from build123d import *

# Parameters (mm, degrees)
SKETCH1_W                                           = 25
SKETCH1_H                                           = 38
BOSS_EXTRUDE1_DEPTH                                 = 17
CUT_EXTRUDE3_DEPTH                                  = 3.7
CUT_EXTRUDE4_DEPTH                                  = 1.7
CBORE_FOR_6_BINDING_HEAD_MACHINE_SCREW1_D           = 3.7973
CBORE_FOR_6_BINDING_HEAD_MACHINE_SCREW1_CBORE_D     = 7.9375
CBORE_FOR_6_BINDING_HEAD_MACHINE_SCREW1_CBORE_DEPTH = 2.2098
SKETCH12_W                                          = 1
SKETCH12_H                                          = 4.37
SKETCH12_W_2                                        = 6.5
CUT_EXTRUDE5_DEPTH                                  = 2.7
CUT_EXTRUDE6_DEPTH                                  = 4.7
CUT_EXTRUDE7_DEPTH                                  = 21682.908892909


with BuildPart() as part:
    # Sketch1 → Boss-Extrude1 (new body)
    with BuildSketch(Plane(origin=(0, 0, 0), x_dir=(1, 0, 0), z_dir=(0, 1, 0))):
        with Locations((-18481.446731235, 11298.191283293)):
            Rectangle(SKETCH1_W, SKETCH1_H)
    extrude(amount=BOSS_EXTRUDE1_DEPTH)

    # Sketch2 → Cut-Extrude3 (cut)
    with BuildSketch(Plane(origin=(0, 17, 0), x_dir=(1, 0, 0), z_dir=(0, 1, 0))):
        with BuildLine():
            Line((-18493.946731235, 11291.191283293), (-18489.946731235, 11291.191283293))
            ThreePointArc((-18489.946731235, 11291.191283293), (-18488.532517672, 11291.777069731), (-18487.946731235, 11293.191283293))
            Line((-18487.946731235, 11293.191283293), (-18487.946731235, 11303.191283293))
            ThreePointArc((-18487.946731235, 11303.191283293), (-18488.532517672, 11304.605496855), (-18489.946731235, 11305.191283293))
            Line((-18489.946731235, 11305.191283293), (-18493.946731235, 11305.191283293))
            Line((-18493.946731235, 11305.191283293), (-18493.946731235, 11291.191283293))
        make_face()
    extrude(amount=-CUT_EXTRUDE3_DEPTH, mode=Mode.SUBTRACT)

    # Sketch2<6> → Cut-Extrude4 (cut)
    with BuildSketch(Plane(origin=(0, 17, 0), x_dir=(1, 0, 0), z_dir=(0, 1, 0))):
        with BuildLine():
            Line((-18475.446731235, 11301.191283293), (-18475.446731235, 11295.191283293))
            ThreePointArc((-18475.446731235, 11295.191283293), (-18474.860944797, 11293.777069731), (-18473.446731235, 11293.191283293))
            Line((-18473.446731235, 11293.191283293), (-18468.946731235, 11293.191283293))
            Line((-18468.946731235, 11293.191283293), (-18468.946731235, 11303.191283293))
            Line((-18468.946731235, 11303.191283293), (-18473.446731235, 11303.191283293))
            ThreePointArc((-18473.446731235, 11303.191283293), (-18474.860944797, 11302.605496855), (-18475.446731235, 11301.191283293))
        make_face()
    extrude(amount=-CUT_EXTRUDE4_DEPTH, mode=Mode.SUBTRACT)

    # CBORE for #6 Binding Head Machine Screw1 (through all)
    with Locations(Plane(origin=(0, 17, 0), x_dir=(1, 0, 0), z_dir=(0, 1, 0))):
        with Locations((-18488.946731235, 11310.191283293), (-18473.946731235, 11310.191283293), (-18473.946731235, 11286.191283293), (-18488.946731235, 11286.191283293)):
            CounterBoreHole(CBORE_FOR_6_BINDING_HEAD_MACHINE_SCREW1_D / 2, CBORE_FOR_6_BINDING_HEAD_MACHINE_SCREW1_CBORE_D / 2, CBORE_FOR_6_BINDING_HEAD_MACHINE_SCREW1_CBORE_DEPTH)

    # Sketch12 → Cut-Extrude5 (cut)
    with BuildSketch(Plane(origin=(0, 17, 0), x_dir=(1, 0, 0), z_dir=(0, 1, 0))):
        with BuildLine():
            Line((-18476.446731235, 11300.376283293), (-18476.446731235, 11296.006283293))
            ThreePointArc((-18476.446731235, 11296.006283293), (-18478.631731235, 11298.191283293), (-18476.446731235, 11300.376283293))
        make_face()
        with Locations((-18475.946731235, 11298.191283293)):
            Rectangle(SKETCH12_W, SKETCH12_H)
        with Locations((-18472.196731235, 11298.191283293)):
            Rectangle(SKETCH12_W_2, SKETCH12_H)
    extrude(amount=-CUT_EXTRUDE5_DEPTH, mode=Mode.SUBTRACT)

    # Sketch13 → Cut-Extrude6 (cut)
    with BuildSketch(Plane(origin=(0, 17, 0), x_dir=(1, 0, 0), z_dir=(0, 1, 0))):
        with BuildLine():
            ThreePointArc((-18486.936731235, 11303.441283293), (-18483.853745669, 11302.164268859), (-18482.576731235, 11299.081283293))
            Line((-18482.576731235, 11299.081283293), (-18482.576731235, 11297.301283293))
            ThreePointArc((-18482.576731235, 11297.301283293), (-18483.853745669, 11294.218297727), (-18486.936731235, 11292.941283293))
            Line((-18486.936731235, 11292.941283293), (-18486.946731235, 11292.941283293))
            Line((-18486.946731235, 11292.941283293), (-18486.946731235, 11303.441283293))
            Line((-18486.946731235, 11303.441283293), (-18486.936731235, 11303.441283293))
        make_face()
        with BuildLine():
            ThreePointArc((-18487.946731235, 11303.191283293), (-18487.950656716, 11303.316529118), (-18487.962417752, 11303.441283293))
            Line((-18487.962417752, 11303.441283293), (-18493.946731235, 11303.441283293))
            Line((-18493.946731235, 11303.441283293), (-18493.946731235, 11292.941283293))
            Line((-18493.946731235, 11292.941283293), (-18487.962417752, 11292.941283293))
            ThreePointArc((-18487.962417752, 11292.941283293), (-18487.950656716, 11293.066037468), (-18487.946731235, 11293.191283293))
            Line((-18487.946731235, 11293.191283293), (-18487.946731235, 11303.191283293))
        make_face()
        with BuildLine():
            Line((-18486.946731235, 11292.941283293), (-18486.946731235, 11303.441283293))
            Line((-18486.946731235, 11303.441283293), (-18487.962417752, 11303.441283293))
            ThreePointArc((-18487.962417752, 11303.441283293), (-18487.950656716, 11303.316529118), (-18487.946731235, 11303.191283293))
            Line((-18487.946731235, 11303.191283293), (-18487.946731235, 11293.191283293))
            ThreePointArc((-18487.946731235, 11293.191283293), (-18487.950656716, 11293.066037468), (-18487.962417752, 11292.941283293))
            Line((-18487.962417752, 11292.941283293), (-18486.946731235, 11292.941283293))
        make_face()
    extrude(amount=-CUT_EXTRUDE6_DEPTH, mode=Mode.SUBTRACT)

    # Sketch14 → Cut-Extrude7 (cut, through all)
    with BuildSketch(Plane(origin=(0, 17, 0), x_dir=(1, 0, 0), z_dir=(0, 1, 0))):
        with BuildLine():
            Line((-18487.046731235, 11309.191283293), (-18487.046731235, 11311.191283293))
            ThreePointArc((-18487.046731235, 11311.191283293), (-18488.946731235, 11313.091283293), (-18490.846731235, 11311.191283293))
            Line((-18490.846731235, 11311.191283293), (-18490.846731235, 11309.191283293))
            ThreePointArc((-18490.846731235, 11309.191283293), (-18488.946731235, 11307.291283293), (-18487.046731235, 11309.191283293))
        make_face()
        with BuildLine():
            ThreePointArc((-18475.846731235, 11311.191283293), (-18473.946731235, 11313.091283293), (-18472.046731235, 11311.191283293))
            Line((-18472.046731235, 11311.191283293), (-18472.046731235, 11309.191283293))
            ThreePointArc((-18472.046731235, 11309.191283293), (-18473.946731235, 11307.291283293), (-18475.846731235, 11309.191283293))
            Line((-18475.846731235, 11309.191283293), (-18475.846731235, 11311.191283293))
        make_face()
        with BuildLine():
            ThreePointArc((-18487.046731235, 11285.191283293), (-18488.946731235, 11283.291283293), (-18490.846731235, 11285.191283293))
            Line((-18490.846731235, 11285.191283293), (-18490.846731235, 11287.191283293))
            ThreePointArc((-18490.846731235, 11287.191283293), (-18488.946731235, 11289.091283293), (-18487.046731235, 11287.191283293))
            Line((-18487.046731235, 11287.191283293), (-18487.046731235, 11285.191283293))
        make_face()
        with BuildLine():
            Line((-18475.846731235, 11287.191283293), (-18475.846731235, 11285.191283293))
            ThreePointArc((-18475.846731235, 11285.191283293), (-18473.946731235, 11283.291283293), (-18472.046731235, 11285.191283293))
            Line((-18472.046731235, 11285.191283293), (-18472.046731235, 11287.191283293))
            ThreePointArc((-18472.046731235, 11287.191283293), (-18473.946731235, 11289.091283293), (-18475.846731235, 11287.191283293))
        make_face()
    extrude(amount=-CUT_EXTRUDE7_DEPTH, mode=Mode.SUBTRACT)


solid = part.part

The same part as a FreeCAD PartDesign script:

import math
import FreeCAD as App
import Part
import Sketcher

V = App.Vector

doc = App.newDocument("Part")
params = doc.addObject("Spreadsheet::Sheet", "Params")
for row, (alias, value) in enumerate([
    ("sketch1_width", "25 mm"),
    ("sketch1_height", "38 mm"),
    ("pad1_length", "17 mm"),
    ("sketch2_radius", "2 mm"),
    ("sketch2_width", "4 mm"),
    ("sketch2_height", "10 mm"),
    ("pocket1_length", "3.7 mm"),
    ("sketch3_radius", "2 mm"),
    ("sketch3_height", "6 mm"),
    ("sketch3_width", "4.5 mm"),
    ("pocket2_length", "1.7 mm"),
    ("hole_diameter", "3.7973 mm"),
    ("hole_cbore_diameter", "7.9375 mm"),
    ("hole_cbore_depth", "2.2098 mm"),
    ("sketch5_width", "7.5 mm"),
    ("pocket3_length", "2.7 mm"),
    ("sketch6_radius", "4.36 mm"),
    ("sketch6_height", "10.5 mm"),
    ("sketch6_width", "7.01 mm"),
    ("pocket4_length", "4.7 mm"),
    ("sketch7_radius", "1.9 mm"),
    ("sketch7_height", "2 mm"),
], start=1):
    params.set(f"A{row}", alias)
    params.set(f"B{row}", "=" + value)
    params.setAlias(f"B{row}", alias)

body = doc.addObject("PartDesign::Body", "Body")

# Sketch on XZ plane
sketch1 = doc.addObject("Sketcher::SketchObject", "Sketch")
body.addObject(sketch1)
sketch1.AttachmentSupport = (doc.XZ_Plane, [""])
sketch1.MapMode = "FlatFace"
sketch1.addGeometry([
    Part.LineSegment(V(-18493.946731, -11317.191283, 0), V(-18493.946731, -11279.191283, 0)),
    Part.LineSegment(V(-18493.946731, -11279.191283, 0), V(-18468.946731, -11279.191283, 0)),
    Part.LineSegment(V(-18468.946731, -11279.191283, 0), V(-18468.946731, -11317.191283, 0)),
    Part.LineSegment(V(-18468.946731, -11317.191283, 0), V(-18493.946731, -11317.191283, 0)),
], False)
sketch1.addConstraint([
    Sketcher.Constraint("Coincident", 0, 2, 1, 1),
    Sketcher.Constraint("Coincident", 1, 2, 2, 1),
    Sketcher.Constraint("Coincident", 2, 2, 3, 1),
    Sketcher.Constraint("Coincident", 3, 2, 0, 1),
    Sketcher.Constraint("Vertical", 0),
    Sketcher.Constraint("Horizontal", 1),
    Sketcher.Constraint("Vertical", 2),
    Sketcher.Constraint("Horizontal", 3),
    Sketcher.Constraint("DistanceX", 1, 1, 1, 2, 25.0),
    Sketcher.Constraint("DistanceY", 0, 1, 0, 2, 38.0),
    Sketcher.Constraint("DistanceX", 0, 2, -1, 1, 18493.946731),
    Sketcher.Constraint("DistanceY", 0, 2, -1, 1, 11279.191283),
])
sketch1.setExpression("Constraints[8]", "Params.sketch1_width")
sketch1.setExpression("Constraints[9]", "Params.sketch1_height")
pad1 = doc.addObject("PartDesign::Pad", "Pad")
body.addObject(pad1)
pad1.Profile = sketch1
pad1.setExpression("Length", "Params.pad1_length")
pad1.Reversed = True

# Sketch on XZ plane
sketch2 = doc.addObject("Sketcher::SketchObject", "Sketch001")
body.addObject(sketch2)
sketch2.AttachmentSupport = (doc.XZ_Plane, [""])
sketch2.MapMode = "FlatFace"
sketch2.AttachmentOffset = App.Placement(V(0, 0, -17), App.Rotation())
sketch2.addGeometry([
    Part.LineSegment(V(-18493.946731, -11291.191283, 0), V(-18489.946731, -11291.191283, 0)),  # 0
    Part.ArcOfCircle(Part.Circle(V(-18489.946731, -11293.191283, 0), V(0, 0, 1), 2), math.radians(0), math.radians(90)),  # 1
    Part.LineSegment(V(-18487.946731, -11293.191283, 0), V(-18487.946731, -11303.191283, 0)),  # 2
    Part.ArcOfCircle(Part.Circle(V(-18489.946731, -11303.191283, 0), V(0, 0, 1), 2), math.radians(-90), math.radians(0)),  # 3
    Part.LineSegment(V(-18489.946731, -11305.191283, 0), V(-18493.946731, -11305.191283, 0)),  # 4
    Part.LineSegment(V(-18493.946731, -11305.191283, 0), V(-18493.946731, -11291.191283, 0)),  # 5
], False)
sketch2.addConstraint([
    Sketcher.Constraint("Tangent", 0, 2, 1, 2),
    Sketcher.Constraint("Tangent", 1, 1, 2, 1),
    Sketcher.Constraint("Tangent", 2, 2, 3, 2),
    Sketcher.Constraint("Tangent", 3, 1, 4, 1),
    Sketcher.Constraint("Coincident", 4, 2, 5, 1),
    Sketcher.Constraint("Coincident", 5, 2, 0, 1),
    Sketcher.Constraint("Horizontal", 0),
    Sketcher.Constraint("Vertical", 2),
    Sketcher.Constraint("Horizontal", 4),
    Sketcher.Constraint("Vertical", 5),
    Sketcher.Constraint("Equal", 1, 3),
    Sketcher.Constraint("Radius", 1, 2.0),
    Sketcher.Constraint("DistanceX", 0, 1, 0, 2, 4.0),
    Sketcher.Constraint("DistanceY", 2, 2, 2, 1, 10.0),
    Sketcher.Constraint("DistanceX", 1, 3, -1, 1, 18489.946731),
    Sketcher.Constraint("DistanceY", 1, 3, -1, 1, 11293.191283),
])
sketch2.setExpression("Constraints[11]", "Params.sketch2_radius")
sketch2.setExpression("Constraints[12]", "Params.sketch2_width")
sketch2.setExpression("Constraints[13]", "Params.sketch2_height")
pocket1 = doc.addObject("PartDesign::Pocket", "Pocket")
body.addObject(pocket1)
pocket1.Profile = sketch2
pocket1.setExpression("Length", "Params.pocket1_length")
pocket1.Reversed = True

# Sketch on XZ plane
sketch3 = doc.addObject("Sketcher::SketchObject", "Sketch002")
body.addObject(sketch3)
sketch3.AttachmentSupport = (doc.XZ_Plane, [""])
sketch3.MapMode = "FlatFace"
sketch3.AttachmentOffset = App.Placement(V(0, 0, -17), App.Rotation())
sketch3.addGeometry([
    Part.LineSegment(V(-18475.446731, -11301.191283, 0), V(-18475.446731, -11295.191283, 0)),  # 0
    Part.ArcOfCircle(Part.Circle(V(-18473.446731, -11295.191283, 0), V(0, 0, 1), 2), math.radians(90), math.radians(180)),  # 1
    Part.LineSegment(V(-18473.446731, -11293.191283, 0), V(-18468.946731, -11293.191283, 0)),  # 2
    Part.LineSegment(V(-18468.946731, -11293.191283, 0), V(-18468.946731, -11303.191283, 0)),  # 3
    Part.LineSegment(V(-18468.946731, -11303.191283, 0), V(-18473.446731, -11303.191283, 0)),  # 4
    Part.ArcOfCircle(Part.Circle(V(-18473.446731, -11301.191283, 0), V(0, 0, 1), 2), math.radians(-180), math.radians(-90)),  # 5
], False)
sketch3.addConstraint([
    Sketcher.Constraint("Tangent", 0, 2, 1, 2),
    Sketcher.Constraint("Tangent", 1, 1, 2, 1),
    Sketcher.Constraint("Coincident", 2, 2, 3, 1),
    Sketcher.Constraint("Coincident", 3, 2, 4, 1),
    Sketcher.Constraint("Tangent", 4, 2, 5, 2),
    Sketcher.Constraint("Tangent", 5, 1, 0, 1),
    Sketcher.Constraint("Vertical", 0),
    Sketcher.Constraint("Horizontal", 2),
    Sketcher.Constraint("Vertical", 3),
    Sketcher.Constraint("Horizontal", 4),
    Sketcher.Constraint("Equal", 1, 5),
    Sketcher.Constraint("Radius", 1, 2.0),
    Sketcher.Constraint("DistanceY", 0, 1, 0, 2, 6.0),
    Sketcher.Constraint("DistanceX", 2, 1, 2, 2, 4.5),
    Sketcher.Constraint("DistanceX", 1, 3, -1, 1, 18473.446731),
    Sketcher.Constraint("DistanceY", 1, 3, -1, 1, 11295.191283),
])
sketch3.setExpression("Constraints[11]", "Params.sketch3_radius")
sketch3.setExpression("Constraints[12]", "Params.sketch3_height")
sketch3.setExpression("Constraints[13]", "Params.sketch3_width")
pocket2 = doc.addObject("PartDesign::Pocket", "Pocket001")
body.addObject(pocket2)
pocket2.Profile = sketch3
pocket2.setExpression("Length", "Params.pocket2_length")
pocket2.Reversed = True

# Sketch on XZ plane
sketch4 = doc.addObject("Sketcher::SketchObject", "Sketch003")
body.addObject(sketch4)
sketch4.AttachmentSupport = (doc.XZ_Plane, [""])
sketch4.MapMode = "FlatFace"
sketch4.AttachmentOffset = App.Placement(V(0, 0, -17), App.Rotation())
sketch4.addGeometry([
    Part.Circle(V(-18488.946731, -11310.191283, 0), V(0, 0, 1), 1.89865),
    Part.Circle(V(-18473.946731, -11310.191283, 0), V(0, 0, 1), 1.89865),
    Part.Circle(V(-18473.946731, -11286.191283, 0), V(0, 0, 1), 1.89865),
    Part.Circle(V(-18488.946731, -11286.191283, 0), V(0, 0, 1), 1.89865),
], False)
sketch4.addConstraint([
    Sketcher.Constraint("Equal", 0, 1),
    Sketcher.Constraint("Equal", 1, 2),
    Sketcher.Constraint("Equal", 2, 3),
    Sketcher.Constraint("Horizontal", 0, 3, 1, 3),
    Sketcher.Constraint("Horizontal", 2, 3, 3, 3),
    Sketcher.Constraint("Vertical", 1, 3, 2, 3),
    Sketcher.Constraint("Vertical", 0, 3, 3, 3),
    Sketcher.Constraint("DistanceX", 0, 3, 1, 3, 15.0),
    Sketcher.Constraint("DistanceY", 1, 3, 2, 3, 24.0),
    Sketcher.Constraint("Diameter", 0, 3.7973),
    Sketcher.Constraint("DistanceX", 0, 3, -1, 1, 18488.946731),
    Sketcher.Constraint("DistanceY", 0, 3, -1, 1, 11310.191283),
])
doc.recompute()
hole = doc.addObject("PartDesign::Hole", "Hole")
body.addObject(hole)
hole.Profile = sketch4
hole.ThreadType = "None"
hole.setExpression("Diameter", "Params.hole_diameter")
hole.DepthType = "ThroughAll"
hole.HoleCutType = "Counterbore"
hole.setExpression("HoleCutDiameter", "Params.hole_cbore_diameter")
hole.setExpression("HoleCutDepth", "Params.hole_cbore_depth")
hole.Reversed = True

# Sketch on XZ plane
sketch5 = doc.addObject("Sketcher::SketchObject", "Sketch004")
body.addObject(sketch5)
sketch5.AttachmentSupport = (doc.XZ_Plane, [""])
sketch5.MapMode = "FlatFace"
sketch5.AttachmentOffset = App.Placement(V(0, 0, -17), App.Rotation())
sketch5.addGeometry([
    Part.ArcOfCircle(Part.Circle(V(-18476.446731, -11298.191283, 0), V(0, 0, 1), 2.185), math.radians(90), math.radians(270)),
    Part.LineSegment(V(-18476.446731, -11296.006283, 0), V(-18468.946731, -11296.006283, 0)),
    Part.LineSegment(V(-18468.946731, -11296.006283, 0), V(-18468.946731, -11300.376283, 0)),
    Part.LineSegment(V(-18468.946731, -11300.376283, 0), V(-18476.446731, -11300.376283, 0)),
], False)
sketch5.addConstraint([
    Sketcher.Constraint("Tangent", 0, 1, 1, 1),
    Sketcher.Constraint("Coincident", 1, 2, 2, 1),
    Sketcher.Constraint("Coincident", 2, 2, 3, 1),
    Sketcher.Constraint("Tangent", 3, 2, 0, 2),
    Sketcher.Constraint("Horizontal", 1),
    Sketcher.Constraint("Vertical", 2),
    Sketcher.Constraint("Horizontal", 3),
    Sketcher.Constraint("DistanceX", 1, 1, 1, 2, 7.5),
    Sketcher.Constraint("Radius", 0, 2.185),
    Sketcher.Constraint("DistanceX", 0, 3, -1, 1, 18476.446731),
    Sketcher.Constraint("DistanceY", 0, 3, -1, 1, 11298.191283),
])
sketch5.setExpression("Constraints[7]", "Params.sketch5_width")
pocket3 = doc.addObject("PartDesign::Pocket", "Pocket002")
body.addObject(pocket3)
pocket3.Profile = sketch5
pocket3.setExpression("Length", "Params.pocket3_length")
pocket3.Reversed = True

# Sketch on XZ plane
sketch6 = doc.addObject("Sketcher::SketchObject", "Sketch005")
body.addObject(sketch6)
sketch6.AttachmentSupport = (doc.XZ_Plane, [""])
sketch6.MapMode = "FlatFace"
sketch6.AttachmentOffset = App.Placement(V(0, 0, -17), App.Rotation())
sketch6.addGeometry([
    Part.ArcOfCircle(Part.Circle(V(-18486.936731, -11299.081283, 0), V(0, 0, 1), 4.36), math.radians(-90), math.radians(0)),  # 0
    Part.LineSegment(V(-18486.936731, -11303.441283, 0), V(-18493.946731, -11303.441283, 0)),  # 1
    Part.LineSegment(V(-18493.946731, -11303.441283, 0), V(-18493.946731, -11292.941283, 0)),  # 2
    Part.LineSegment(V(-18493.946731, -11292.941283, 0), V(-18486.936731, -11292.941283, 0)),  # 3
    Part.ArcOfCircle(Part.Circle(V(-18486.936731, -11297.301283, 0), V(0, 0, 1), 4.36), math.radians(0), math.radians(90)),  # 4
    Part.LineSegment(V(-18482.576731, -11297.301283, 0), V(-18482.576731, -11299.081283, 0)),  # 5
], False)
sketch6.addConstraint([
    Sketcher.Constraint("Tangent", 0, 1, 1, 1),
    Sketcher.Constraint("Coincident", 1, 2, 2, 1),
    Sketcher.Constraint("Coincident", 2, 2, 3, 1),
    Sketcher.Constraint("Tangent", 3, 2, 4, 2),
    Sketcher.Constraint("Tangent", 4, 1, 5, 1),
    Sketcher.Constraint("Tangent", 5, 2, 0, 2),
    Sketcher.Constraint("Horizontal", 1),
    Sketcher.Constraint("Vertical", 2),
    Sketcher.Constraint("Horizontal", 3),
    Sketcher.Constraint("Vertical", 5),
    Sketcher.Constraint("Equal", 0, 4),
    Sketcher.Constraint("Radius", 0, 4.36),
    Sketcher.Constraint("DistanceY", 2, 1, 2, 2, 10.5),
    Sketcher.Constraint("DistanceX", 1, 2, 1, 1, 7.01),
    Sketcher.Constraint("DistanceX", 0, 3, -1, 1, 18486.936731),
    Sketcher.Constraint("DistanceY", 0, 3, -1, 1, 11299.081283),
])
sketch6.setExpression("Constraints[11]", "Params.sketch6_radius")
sketch6.setExpression("Constraints[12]", "Params.sketch6_height")
sketch6.setExpression("Constraints[13]", "Params.sketch6_width")
pocket4 = doc.addObject("PartDesign::Pocket", "Pocket003")
body.addObject(pocket4)
pocket4.Profile = sketch6
pocket4.setExpression("Length", "Params.pocket4_length")
pocket4.Reversed = True

# Sketch on XZ plane
sketch7 = doc.addObject("Sketcher::SketchObject", "Sketch006")
body.addObject(sketch7)
sketch7.AttachmentSupport = (doc.XZ_Plane, [""])
sketch7.MapMode = "FlatFace"
sketch7.AttachmentOffset = App.Placement(V(0, 0, -17), App.Rotation())
sketch7.addGeometry([
    Part.LineSegment(V(-18487.046731, -11309.191283, 0), V(-18487.046731, -11311.191283, 0)),  # 0
    Part.ArcOfCircle(Part.Circle(V(-18488.946731, -11311.191283, 0), V(0, 0, 1), 1.9), math.radians(180), math.radians(360)),  # 1
    Part.LineSegment(V(-18490.846731, -11311.191283, 0), V(-18490.846731, -11309.191283, 0)),  # 2
    Part.ArcOfCircle(Part.Circle(V(-18488.946731, -11309.191283, 0), V(0, 0, 1), 1.9), math.radians(0), math.radians(180)),  # 3
    Part.ArcOfCircle(Part.Circle(V(-18473.946731, -11311.191283, 0), V(0, 0, 1), 1.9), math.radians(180), math.radians(360)),  # 4
    Part.LineSegment(V(-18475.846731, -11311.191283, 0), V(-18475.846731, -11309.191283, 0)),  # 5
    Part.ArcOfCircle(Part.Circle(V(-18473.946731, -11309.191283, 0), V(0, 0, 1), 1.9), math.radians(0), math.radians(180)),  # 6
    Part.LineSegment(V(-18472.046731, -11309.191283, 0), V(-18472.046731, -11311.191283, 0)),  # 7
    Part.ArcOfCircle(Part.Circle(V(-18488.946731, -11285.191283, 0), V(0, 0, 1), 1.9), math.radians(0), math.radians(180)),  # 8
    Part.LineSegment(V(-18487.046731, -11285.191283, 0), V(-18487.046731, -11287.191283, 0)),  # 9
    Part.ArcOfCircle(Part.Circle(V(-18488.946731, -11287.191283, 0), V(0, 0, 1), 1.9), math.radians(180), math.radians(360)),  # 10
    Part.LineSegment(V(-18490.846731, -11287.191283, 0), V(-18490.846731, -11285.191283, 0)),  # 11
    Part.LineSegment(V(-18475.846731, -11287.191283, 0), V(-18475.846731, -11285.191283, 0)),  # 12
    Part.ArcOfCircle(Part.Circle(V(-18473.946731, -11285.191283, 0), V(0, 0, 1), 1.9), math.radians(0), math.radians(180)),  # 13
    Part.LineSegment(V(-18472.046731, -11285.191283, 0), V(-18472.046731, -11287.191283, 0)),  # 14
    Part.ArcOfCircle(Part.Circle(V(-18473.946731, -11287.191283, 0), V(0, 0, 1), 1.9), math.radians(180), math.radians(360)),  # 15
], False)
sketch7.addConstraint([
    Sketcher.Constraint("Tangent", 0, 2, 1, 2),
    Sketcher.Constraint("Tangent", 1, 1, 2, 1),
    Sketcher.Constraint("Tangent", 2, 2, 3, 2),
    Sketcher.Constraint("Tangent", 3, 1, 0, 1),
    Sketcher.Constraint("Tangent", 4, 1, 5, 1),
    Sketcher.Constraint("Tangent", 5, 2, 6, 2),
    Sketcher.Constraint("Tangent", 6, 1, 7, 1),
    Sketcher.Constraint("Tangent", 7, 2, 4, 2),
    Sketcher.Constraint("Tangent", 8, 1, 9, 1),
    Sketcher.Constraint("Tangent", 9, 2, 10, 2),
    Sketcher.Constraint("Tangent", 10, 1, 11, 1),
    Sketcher.Constraint("Tangent", 11, 2, 8, 2),
    Sketcher.Constraint("Tangent", 12, 2, 13, 2),
    Sketcher.Constraint("Tangent", 13, 1, 14, 1),
    Sketcher.Constraint("Tangent", 14, 2, 15, 2),
    Sketcher.Constraint("Tangent", 15, 1, 12, 1),
    Sketcher.Constraint("Vertical", 0),
    Sketcher.Constraint("Vertical", 2),
    Sketcher.Constraint("Vertical", 5),
    Sketcher.Constraint("Vertical", 7),
    Sketcher.Constraint("Vertical", 9),
    Sketcher.Constraint("Vertical", 11),
    Sketcher.Constraint("Vertical", 12),
    Sketcher.Constraint("Vertical", 14),
    Sketcher.Constraint("Equal", 3, 4),
    Sketcher.Constraint("Equal", 6, 8),
    Sketcher.Constraint("Equal", 10, 13),
    Sketcher.Constraint("Horizontal", 1, 3, 4, 3),
    Sketcher.Constraint("Horizontal", 3, 3, 6, 3),
    Sketcher.Constraint("Horizontal", 8, 3, 13, 3),
    Sketcher.Constraint("Horizontal", 10, 3, 15, 3),
    Sketcher.Constraint("Vertical", 3, 3, 8, 3),
    Sketcher.Constraint("Vertical", 6, 3, 13, 3),
    Sketcher.Constraint("Equal", 7, 9),
    Sketcher.Constraint("Radius", 1, 1.9),
    Sketcher.Constraint("DistanceY", 0, 2, 0, 1, 2.0),
    Sketcher.Constraint("DistanceX", 1, 3, 4, 3, 15.0),
    Sketcher.Constraint("DistanceY", 3, 3, 8, 3, 24.0),
    Sketcher.Constraint("DistanceX", 1, 3, -1, 1, 18488.946731),
    Sketcher.Constraint("DistanceY", 1, 3, -1, 1, 11311.191283),
])
sketch7.setExpression("Constraints[34]", "Params.sketch7_radius")
sketch7.setExpression("Constraints[35]", "Params.sketch7_height")
pocket5 = doc.addObject("PartDesign::Pocket", "Pocket004")
body.addObject(pocket5)
pocket5.Profile = sketch7
pocket5.Type = "ThroughAll"
pocket5.Reversed = True

doc.recompute()
